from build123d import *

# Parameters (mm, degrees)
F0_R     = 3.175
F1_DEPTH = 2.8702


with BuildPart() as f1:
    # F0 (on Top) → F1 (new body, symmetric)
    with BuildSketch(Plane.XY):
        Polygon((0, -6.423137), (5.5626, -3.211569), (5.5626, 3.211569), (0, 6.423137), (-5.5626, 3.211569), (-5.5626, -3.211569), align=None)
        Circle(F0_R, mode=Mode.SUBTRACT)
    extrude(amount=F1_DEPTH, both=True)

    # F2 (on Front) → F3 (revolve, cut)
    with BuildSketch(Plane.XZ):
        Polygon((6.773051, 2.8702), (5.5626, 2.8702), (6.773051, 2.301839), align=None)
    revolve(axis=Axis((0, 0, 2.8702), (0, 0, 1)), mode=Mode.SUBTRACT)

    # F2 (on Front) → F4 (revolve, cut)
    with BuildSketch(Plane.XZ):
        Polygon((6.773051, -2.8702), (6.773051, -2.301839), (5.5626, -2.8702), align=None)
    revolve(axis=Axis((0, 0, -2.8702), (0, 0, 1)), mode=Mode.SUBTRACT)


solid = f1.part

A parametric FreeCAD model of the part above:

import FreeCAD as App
import Part
import Sketcher
from FreeCAD import Vector
Q = App.Units.Quantity

doc = App.newDocument("Part")
body = doc.addObject("PartDesign::Body", "Body")

# Sketch on XY plane
sketch1 = body.newObject("Sketcher::SketchObject", "Sketch")
sketch1.AttachmentSupport = (doc.getObject("XY_Plane"), [""])
sketch1.MapMode = "FlatFace"
sketch1.addGeometry(Part.LineSegment(Vector(0, -6.4, 0), Vector(5.6, -3.2, 0)), False)
sketch1.addGeometry(Part.LineSegment(Vector(5.6, -3.2, 0), Vector(5.6, 3.2, 0)), False)
sketch1.addGeometry(Part.LineSegment(Vector(5.6, 3.2, 0), Vector(0, 6.4, 0)), False)
sketch1.addGeometry(Part.LineSegment(Vector(0, 6.4, 0), Vector(-5.6, 3.2, 0)), False)
sketch1.addGeometry(Part.LineSegment(Vector(-5.6, 3.2, 0), Vector(-5.6, -3.2, 0)), False)
sketch1.addGeometry(Part.LineSegment(Vector(-5.6, -3.2, 0), Vector(0, -6.4, 0)), False)
sketch1.addGeometry(Part.Circle(Vector(0, 0, 0), Vector(0, 0, 1), 3.2), False)
sketch1.addConstraint(Sketcher.Constraint("Coincident", 0, 2, 1, 1))
sketch1.addConstraint(Sketcher.Constraint("Coincident", 1, 2, 2, 1))
sketch1.addConstraint(Sketcher.Constraint("Coincident", 2, 2, 3, 1))
sketch1.addConstraint(Sketcher.Constraint("Coincident", 3, 2, 4, 1))
sketch1.addConstraint(Sketcher.Constraint("Coincident", 4, 2, 5, 1))
sketch1.addConstraint(Sketcher.Constraint("Coincident", 5, 2, 0, 1))
sketch1.addConstraint(Sketcher.Constraint("Vertical", 1))
sketch1.addConstraint(Sketcher.Constraint("Vertical", 4))
sketch1.addConstraint(Sketcher.Constraint("Coincident", 6, 3, -1, 1))
sketch1.addConstraint(Sketcher.Constraint("Symmetric", 0, 2, 3, 2, -1, 1))
sketch1.addConstraint(Sketcher.Constraint("Symmetric", 2, 2, 5, 2, -1, 1))
sketch1.addConstraint(Sketcher.Constraint("PointOnObject", 2, 2, -2))
sketch1.addConstraint(Sketcher.Constraint("Parallel", 2, 5))
sketch1.addConstraint(Sketcher.Constraint("Horizontal", 1, 2, 3, 2))
sketch1.addConstraint(Sketcher.Constraint("Diameter", 6, Q("0.25 in")))
sketch1.addConstraint(Sketcher.Constraint("Angle", 0, Q("29.999995 deg")))
sketch1.addConstraint(Sketcher.Constraint("DistanceX", -1, 1, 0, 2, Q("0.219 in")))
sketch1.addConstraint(Sketcher.Constraint("DistanceY", 1, 1, 1, 2, Q("6.423138 mm")))
pad1 = body.newObject("PartDesign::Pad", "Pad")
pad1.Profile = sketch1
pad1.Length = Q("0.226 in")
pad1.Midplane = True

# Sketch on XZ plane
sketch2 = body.newObject("Sketcher::SketchObject", "Sketch001")
sketch2.AttachmentSupport = (doc.getObject("XZ_Plane"), [""])
sketch2.MapMode = "FlatFace"
sketch2.addGeometry(Part.LineSegment(Vector(6.8, 2.9, 0), Vector(5.6, 2.9, 0)), False)
sketch2.addGeometry(Part.LineSegment(Vector(5.6, 2.9, 0), Vector(6.8, 2.3, 0)), False)
sketch2.addGeometry(Part.LineSegment(Vector(6.8, 2.3, 0), Vector(6.8, 2.9, 0)), False)
sketch2.addConstraint(Sketcher.Constraint("Coincident", 0, 2, 1, 1))
sketch2.addConstraint(Sketcher.Constraint("Coincident", 1, 2, 2, 1))
sketch2.addConstraint(Sketcher.Constraint("Coincident", 2, 2, 0, 1))
sketch2.addConstraint(Sketcher.Constraint("Horizontal", 0))
sketch2.addConstraint(Sketcher.Constraint("Vertical", 2))
sketch2.addConstraint(Sketcher.Constraint("DistanceX", -1, 1, 0, 2, Q("0.219 in")))
sketch2.addConstraint(Sketcher.Constraint("DistanceY", -1, 1, 0, 2, Q("0.113 in")))
sketch2.addConstraint(Sketcher.Constraint("DistanceX", 0, 2, 0, 1, Q("1.210451 mm")))
sketch2.addConstraint(Sketcher.Constraint("DistanceY", 2, 1, 2, 2, Q("0.568361 mm")))
groove = body.newObject("PartDesign::Groove", "Groove")
groove.Profile = sketch2
groove.ReferenceAxis = (sketch2, ["V_Axis"])
groove.Angle = 360

# Sketch on XZ plane
sketch3 = body.newObject("Sketcher::SketchObject", "Sketch002")
sketch3.AttachmentSupport = (doc.getObject("XZ_Plane"), [""])
sketch3.MapMode = "FlatFace"
sketch3.addGeometry(Part.LineSegment(Vector(6.8, -2.9, 0), Vector(6.8, -2.3, 0)), False)
sketch3.addGeometry(Part.LineSegment(Vector(6.8, -2.3, 0), Vector(5.6, -2.9, 0)), False)
sketch3.addGeometry(Part.LineSegment(Vector(5.6, -2.9, 0), Vector(6.8, -2.9, 0)), False)
sketch3.addConstraint(Sketcher.Constraint("Coincident", 0, 2, 1, 1))
sketch3.addConstraint(Sketcher.Constraint("Coincident", 1, 2, 2, 1))
sketch3.addConstraint(Sketcher.Constraint("Coincident", 2, 2, 0, 1))
sketch3.addConstraint(Sketcher.Constraint("Vertical", 0))
sketch3.addConstraint(Sketcher.Constraint("Horizontal", 2))
sketch3.addConstraint(Sketcher.Constraint("DistanceX", -1, 1, 1, 2, Q("0.219 in")))
sketch3.addConstraint(Sketcher.Constraint("DistanceY", 1, 2, -1, 1, Q("0.113 in")))
sketch3.addConstraint(Sketcher.Constraint("DistanceX", 2, 1, 2, 2, Q("1.210451 mm")))
sketch3.addConstraint(Sketcher.Constraint("DistanceY", 0, 1, 0, 2, Q("0.568361 mm")))
groove2 = body.newObject("PartDesign::Groove", "Groove001")
groove2.Profile = sketch3
groove2.ReferenceAxis = (sketch3, ["V_Axis"])
groove2.Angle = 360

doc.recompute()
